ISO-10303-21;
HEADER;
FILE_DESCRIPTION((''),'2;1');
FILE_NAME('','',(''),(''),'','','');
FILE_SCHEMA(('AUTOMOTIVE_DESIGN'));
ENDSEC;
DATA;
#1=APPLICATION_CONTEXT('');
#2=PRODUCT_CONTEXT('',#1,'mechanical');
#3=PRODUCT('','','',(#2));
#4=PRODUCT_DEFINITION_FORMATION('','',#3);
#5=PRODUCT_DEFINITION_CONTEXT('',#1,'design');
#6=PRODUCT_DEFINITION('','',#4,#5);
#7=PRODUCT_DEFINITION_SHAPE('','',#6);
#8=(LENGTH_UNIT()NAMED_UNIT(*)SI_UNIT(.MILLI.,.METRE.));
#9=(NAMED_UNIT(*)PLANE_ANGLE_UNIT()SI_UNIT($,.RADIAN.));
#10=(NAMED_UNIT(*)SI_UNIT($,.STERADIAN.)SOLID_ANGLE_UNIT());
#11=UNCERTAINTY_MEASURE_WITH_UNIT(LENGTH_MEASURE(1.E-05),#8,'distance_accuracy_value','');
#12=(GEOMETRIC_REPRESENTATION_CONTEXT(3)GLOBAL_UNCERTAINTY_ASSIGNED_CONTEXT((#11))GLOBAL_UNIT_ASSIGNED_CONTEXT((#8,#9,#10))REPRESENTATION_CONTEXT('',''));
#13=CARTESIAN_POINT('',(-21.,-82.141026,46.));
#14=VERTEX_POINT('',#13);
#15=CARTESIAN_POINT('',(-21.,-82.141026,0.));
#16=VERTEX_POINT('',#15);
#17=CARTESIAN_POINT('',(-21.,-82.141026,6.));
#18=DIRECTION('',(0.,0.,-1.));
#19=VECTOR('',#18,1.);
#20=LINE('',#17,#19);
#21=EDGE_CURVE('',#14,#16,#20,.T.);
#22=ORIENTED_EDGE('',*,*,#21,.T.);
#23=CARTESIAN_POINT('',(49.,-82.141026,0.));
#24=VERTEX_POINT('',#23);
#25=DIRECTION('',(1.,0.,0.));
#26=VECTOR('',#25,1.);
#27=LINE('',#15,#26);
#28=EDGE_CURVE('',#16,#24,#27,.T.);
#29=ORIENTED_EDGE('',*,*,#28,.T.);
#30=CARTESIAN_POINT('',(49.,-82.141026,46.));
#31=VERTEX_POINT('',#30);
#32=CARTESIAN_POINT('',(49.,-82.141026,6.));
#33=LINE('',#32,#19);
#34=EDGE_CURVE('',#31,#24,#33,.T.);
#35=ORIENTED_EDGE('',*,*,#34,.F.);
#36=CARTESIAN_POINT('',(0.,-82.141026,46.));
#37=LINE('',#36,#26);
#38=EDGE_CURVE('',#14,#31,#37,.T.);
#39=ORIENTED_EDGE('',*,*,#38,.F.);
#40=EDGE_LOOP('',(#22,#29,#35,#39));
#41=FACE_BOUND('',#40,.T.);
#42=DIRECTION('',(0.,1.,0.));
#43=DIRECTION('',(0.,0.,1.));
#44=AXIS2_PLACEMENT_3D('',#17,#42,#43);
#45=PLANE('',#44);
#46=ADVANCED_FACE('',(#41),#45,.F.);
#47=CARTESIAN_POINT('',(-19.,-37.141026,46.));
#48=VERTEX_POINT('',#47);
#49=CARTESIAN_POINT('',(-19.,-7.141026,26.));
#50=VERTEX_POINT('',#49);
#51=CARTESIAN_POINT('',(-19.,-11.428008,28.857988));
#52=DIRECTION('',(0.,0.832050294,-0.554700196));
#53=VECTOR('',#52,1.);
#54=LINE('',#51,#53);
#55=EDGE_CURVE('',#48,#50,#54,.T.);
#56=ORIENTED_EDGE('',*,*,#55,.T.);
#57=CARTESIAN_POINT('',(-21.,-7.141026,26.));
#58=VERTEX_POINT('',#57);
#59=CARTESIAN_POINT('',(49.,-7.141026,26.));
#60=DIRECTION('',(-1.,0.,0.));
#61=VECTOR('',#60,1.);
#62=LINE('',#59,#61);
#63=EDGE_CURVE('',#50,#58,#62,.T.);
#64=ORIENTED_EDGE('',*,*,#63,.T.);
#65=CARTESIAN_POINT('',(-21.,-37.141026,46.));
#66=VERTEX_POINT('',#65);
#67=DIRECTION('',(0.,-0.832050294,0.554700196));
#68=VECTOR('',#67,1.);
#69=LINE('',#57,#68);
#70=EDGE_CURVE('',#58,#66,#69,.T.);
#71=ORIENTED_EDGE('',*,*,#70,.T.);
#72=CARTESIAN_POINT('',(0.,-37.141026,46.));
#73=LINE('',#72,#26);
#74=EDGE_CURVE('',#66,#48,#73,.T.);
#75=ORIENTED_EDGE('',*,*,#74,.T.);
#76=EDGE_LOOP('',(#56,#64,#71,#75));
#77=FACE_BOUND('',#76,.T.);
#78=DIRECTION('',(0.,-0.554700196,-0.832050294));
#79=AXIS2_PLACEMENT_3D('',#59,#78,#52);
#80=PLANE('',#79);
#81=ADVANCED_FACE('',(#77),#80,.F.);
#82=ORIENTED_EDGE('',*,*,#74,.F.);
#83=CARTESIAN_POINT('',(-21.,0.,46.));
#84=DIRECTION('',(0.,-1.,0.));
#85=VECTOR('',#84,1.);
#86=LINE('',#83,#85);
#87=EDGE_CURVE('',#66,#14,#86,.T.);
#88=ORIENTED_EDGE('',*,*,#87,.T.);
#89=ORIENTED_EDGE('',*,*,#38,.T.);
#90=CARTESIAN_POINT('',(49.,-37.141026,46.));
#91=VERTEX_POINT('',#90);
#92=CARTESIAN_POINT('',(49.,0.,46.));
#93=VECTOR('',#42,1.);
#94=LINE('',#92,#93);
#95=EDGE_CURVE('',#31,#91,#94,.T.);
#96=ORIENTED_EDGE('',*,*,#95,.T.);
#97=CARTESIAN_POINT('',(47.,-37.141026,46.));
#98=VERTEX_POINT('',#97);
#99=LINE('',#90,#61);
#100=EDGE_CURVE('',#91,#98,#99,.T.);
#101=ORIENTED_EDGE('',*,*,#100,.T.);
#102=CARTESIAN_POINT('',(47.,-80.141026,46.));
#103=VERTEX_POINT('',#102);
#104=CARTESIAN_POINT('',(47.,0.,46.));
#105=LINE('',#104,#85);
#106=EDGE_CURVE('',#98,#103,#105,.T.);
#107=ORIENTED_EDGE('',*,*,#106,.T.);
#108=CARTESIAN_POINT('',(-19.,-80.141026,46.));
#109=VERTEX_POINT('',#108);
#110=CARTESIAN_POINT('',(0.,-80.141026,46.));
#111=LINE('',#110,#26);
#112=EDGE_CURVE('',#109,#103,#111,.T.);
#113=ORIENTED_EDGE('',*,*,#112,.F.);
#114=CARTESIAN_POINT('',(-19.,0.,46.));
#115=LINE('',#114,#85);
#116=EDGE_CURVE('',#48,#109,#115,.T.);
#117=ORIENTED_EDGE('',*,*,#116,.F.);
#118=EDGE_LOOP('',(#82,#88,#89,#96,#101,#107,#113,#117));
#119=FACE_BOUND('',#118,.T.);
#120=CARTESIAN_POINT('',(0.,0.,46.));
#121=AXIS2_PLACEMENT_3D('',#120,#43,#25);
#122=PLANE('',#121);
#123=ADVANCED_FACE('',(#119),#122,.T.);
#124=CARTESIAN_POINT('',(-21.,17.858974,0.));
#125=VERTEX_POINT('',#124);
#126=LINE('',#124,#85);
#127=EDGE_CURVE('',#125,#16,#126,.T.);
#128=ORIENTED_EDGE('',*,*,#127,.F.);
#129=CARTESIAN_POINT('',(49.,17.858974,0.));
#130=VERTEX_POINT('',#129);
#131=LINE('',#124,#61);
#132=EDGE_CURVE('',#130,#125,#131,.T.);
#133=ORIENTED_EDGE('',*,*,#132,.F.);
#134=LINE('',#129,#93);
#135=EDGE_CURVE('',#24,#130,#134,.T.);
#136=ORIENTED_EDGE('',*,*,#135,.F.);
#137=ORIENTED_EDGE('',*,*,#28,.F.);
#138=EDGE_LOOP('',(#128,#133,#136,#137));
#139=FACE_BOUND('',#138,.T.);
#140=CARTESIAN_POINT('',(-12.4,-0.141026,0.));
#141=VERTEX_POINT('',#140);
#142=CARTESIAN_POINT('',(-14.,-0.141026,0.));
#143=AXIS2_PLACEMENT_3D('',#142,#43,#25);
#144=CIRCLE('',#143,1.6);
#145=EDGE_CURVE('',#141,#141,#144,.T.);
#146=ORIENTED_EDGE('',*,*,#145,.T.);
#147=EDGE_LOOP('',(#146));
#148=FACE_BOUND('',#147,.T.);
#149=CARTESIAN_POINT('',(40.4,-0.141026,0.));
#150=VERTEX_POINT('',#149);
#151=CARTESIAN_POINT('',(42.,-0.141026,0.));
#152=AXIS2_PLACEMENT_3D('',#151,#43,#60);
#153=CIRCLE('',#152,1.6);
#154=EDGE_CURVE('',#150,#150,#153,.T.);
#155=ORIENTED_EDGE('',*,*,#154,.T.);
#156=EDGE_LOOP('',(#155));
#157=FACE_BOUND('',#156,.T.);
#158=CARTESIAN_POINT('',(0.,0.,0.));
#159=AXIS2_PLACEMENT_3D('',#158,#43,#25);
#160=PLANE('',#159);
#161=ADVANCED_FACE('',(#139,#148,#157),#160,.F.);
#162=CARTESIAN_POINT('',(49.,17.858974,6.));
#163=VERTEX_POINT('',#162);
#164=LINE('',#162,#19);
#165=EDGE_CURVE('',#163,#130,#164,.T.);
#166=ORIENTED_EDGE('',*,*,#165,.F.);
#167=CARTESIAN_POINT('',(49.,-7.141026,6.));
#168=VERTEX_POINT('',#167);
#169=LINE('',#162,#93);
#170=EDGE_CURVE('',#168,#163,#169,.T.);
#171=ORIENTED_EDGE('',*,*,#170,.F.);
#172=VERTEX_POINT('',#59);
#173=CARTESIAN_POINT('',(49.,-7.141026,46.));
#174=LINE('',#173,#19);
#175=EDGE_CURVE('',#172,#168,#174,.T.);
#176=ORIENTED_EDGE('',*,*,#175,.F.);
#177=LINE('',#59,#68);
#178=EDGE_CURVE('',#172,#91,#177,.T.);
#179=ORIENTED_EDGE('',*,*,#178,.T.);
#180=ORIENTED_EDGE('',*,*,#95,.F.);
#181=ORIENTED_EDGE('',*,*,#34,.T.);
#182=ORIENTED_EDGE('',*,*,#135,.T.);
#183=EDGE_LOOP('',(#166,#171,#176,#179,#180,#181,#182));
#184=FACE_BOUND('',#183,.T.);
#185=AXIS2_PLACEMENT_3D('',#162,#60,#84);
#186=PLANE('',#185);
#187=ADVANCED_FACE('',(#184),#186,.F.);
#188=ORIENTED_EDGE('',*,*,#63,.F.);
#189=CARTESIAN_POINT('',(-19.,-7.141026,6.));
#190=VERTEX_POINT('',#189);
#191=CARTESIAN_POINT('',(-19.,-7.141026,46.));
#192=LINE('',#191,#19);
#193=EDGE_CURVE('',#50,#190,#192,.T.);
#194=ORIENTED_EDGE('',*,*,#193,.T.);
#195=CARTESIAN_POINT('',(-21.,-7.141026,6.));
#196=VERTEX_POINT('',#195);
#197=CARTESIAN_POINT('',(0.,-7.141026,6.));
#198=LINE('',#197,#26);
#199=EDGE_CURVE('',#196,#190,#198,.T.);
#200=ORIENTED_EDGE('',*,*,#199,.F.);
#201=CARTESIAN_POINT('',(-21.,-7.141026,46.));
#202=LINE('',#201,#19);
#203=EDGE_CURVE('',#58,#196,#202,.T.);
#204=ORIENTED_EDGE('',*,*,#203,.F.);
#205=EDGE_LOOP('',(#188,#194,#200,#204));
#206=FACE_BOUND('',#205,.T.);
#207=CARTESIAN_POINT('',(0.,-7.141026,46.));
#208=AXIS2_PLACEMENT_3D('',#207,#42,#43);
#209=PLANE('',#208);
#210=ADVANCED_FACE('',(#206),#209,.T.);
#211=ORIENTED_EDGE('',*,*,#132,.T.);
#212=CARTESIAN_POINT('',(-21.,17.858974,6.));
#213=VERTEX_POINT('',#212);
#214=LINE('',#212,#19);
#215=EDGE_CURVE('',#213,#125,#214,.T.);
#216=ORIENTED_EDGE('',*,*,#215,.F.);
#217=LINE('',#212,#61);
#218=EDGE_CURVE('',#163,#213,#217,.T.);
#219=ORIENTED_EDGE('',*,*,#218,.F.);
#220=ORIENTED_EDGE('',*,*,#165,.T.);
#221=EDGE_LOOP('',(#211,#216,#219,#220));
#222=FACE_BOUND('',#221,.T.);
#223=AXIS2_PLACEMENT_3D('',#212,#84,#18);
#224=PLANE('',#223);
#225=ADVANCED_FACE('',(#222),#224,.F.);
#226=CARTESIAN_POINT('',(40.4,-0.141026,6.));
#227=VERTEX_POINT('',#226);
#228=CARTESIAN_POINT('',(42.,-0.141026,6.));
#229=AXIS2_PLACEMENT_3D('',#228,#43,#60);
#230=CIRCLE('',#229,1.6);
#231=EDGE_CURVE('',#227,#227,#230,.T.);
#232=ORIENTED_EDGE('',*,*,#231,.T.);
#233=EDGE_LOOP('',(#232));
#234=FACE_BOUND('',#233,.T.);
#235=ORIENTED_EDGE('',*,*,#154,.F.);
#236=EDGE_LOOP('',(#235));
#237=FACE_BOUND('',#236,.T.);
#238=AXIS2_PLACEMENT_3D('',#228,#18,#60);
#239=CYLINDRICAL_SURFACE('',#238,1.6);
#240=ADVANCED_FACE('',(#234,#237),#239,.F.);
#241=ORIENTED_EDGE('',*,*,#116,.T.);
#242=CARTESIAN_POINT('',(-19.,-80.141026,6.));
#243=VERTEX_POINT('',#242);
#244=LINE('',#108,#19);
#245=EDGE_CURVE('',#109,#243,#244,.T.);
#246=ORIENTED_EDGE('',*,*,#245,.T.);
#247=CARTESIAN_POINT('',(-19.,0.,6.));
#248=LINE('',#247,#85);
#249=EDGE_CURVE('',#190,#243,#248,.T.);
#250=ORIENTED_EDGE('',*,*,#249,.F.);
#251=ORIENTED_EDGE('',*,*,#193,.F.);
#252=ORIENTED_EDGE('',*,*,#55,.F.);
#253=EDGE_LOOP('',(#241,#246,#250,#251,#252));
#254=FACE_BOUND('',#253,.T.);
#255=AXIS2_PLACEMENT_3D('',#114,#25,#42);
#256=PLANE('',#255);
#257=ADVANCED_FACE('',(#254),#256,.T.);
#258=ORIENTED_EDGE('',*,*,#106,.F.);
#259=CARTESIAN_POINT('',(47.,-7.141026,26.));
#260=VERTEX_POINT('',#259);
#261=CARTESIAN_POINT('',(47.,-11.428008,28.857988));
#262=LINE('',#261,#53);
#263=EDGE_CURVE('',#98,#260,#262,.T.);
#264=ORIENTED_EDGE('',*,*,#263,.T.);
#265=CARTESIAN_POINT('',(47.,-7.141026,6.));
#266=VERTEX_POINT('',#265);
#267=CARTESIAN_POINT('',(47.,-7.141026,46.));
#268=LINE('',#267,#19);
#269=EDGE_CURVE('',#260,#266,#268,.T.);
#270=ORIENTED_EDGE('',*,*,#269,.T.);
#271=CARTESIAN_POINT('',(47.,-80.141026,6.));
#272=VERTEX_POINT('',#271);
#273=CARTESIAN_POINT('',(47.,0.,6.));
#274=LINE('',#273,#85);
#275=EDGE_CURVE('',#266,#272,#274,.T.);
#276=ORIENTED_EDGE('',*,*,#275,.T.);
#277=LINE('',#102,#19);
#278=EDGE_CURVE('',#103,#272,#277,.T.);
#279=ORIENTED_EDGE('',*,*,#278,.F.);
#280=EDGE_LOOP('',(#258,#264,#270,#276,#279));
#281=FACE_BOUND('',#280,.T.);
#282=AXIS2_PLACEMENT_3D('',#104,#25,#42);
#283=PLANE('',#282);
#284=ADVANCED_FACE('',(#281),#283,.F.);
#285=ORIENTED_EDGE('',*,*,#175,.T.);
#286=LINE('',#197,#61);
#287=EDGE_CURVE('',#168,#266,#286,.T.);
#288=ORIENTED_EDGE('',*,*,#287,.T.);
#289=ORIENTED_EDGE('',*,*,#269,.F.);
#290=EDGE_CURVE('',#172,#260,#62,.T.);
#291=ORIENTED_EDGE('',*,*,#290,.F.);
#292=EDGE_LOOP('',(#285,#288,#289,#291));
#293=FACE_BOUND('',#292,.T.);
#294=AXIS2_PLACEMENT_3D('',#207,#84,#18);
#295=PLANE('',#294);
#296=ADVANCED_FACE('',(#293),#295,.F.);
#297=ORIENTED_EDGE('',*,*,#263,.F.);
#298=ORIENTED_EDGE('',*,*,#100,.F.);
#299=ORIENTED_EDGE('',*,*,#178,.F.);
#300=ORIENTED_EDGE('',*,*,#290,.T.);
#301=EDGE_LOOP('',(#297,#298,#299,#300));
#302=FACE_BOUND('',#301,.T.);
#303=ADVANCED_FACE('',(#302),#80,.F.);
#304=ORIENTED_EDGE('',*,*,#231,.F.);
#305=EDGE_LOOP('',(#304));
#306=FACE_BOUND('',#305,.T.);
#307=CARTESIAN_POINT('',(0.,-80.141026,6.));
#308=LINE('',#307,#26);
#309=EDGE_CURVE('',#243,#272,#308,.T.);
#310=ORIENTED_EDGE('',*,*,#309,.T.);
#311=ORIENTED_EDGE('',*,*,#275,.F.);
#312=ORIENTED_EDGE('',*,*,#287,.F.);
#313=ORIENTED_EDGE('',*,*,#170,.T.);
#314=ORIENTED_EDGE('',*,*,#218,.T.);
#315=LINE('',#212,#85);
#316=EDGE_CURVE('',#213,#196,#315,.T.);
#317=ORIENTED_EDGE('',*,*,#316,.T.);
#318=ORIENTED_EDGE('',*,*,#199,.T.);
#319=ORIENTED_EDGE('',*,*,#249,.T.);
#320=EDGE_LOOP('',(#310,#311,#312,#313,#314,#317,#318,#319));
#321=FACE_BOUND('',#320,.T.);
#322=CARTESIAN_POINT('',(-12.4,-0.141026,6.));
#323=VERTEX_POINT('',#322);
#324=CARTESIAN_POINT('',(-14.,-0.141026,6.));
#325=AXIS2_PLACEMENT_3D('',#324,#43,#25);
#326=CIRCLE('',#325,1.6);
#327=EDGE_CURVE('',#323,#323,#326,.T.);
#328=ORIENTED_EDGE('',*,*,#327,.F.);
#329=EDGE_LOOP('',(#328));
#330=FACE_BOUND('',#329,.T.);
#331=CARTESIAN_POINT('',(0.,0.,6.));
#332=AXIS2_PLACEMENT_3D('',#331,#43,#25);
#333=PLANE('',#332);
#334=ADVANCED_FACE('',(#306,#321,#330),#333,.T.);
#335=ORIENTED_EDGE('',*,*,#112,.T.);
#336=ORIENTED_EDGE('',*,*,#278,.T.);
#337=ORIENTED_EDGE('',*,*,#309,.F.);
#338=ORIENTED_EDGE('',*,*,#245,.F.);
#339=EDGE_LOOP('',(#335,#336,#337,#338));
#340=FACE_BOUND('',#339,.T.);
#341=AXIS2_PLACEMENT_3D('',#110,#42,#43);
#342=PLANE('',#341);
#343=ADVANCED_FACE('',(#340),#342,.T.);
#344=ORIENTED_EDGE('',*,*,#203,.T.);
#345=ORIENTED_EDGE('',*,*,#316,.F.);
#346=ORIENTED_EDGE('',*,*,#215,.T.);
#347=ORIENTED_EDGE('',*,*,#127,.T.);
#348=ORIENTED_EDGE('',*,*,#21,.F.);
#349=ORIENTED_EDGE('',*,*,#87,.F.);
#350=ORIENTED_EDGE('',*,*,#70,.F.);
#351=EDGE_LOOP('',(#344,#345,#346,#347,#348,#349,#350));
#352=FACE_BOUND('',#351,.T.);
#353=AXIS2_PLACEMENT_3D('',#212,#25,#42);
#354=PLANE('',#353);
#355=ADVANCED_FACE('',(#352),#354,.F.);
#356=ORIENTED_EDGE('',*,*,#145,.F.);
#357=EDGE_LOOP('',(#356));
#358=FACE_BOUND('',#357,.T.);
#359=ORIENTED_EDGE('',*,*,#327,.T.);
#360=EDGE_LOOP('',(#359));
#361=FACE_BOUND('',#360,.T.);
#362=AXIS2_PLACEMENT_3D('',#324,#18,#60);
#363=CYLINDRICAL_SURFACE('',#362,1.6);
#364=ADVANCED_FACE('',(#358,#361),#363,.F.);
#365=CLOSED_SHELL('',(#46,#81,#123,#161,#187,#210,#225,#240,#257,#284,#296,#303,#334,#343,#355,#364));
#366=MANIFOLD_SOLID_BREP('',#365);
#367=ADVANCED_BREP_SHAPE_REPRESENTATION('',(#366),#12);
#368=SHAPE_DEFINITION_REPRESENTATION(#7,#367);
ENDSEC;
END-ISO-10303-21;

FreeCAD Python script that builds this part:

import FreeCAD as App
import Part
import Sketcher
from FreeCAD import Vector
Q = App.Units.Quantity

doc = App.newDocument("Part")
params = doc.addObject("Spreadsheet::Sheet", "Params")
for row, (alias, value) in enumerate([
    ("sketch1_diameter", "3.2 mm"),
    ("sketch1_width", "70 mm"),
    ("sketch1_height", "100 mm"),
    ("pad1_length", "6 mm"),
    ("sketch2_width", "2 mm"),
    ("sketch2_width2", "70 mm"),
    ("sketch2_height", "75 mm"),
    ("sketch2_height2", "73 mm"),
    ("pad2_length", "40 mm"),
    ("sketch3_width", "30 mm"),
    ("sketch3_height", "20 mm"),
], start=1):
    params.set(f"A{row}", alias)
    params.set(f"B{row}", "=" + value)
    params.setAlias(f"B{row}", alias)

body = doc.addObject("PartDesign::Body", "Body")

# Sketch on XY plane
sketch1 = body.newObject("Sketcher::SketchObject", "Sketch")
sketch1.AttachmentSupport = (doc.getObject("XY_Plane"), [""])
sketch1.MapMode = "FlatFace"
sketch1.addGeometry(Part.LineSegment(Vector(-21, 17.9, 0), Vector(-21, -82.1, 0)), False)
sketch1.addGeometry(Part.LineSegment(Vector(-21, -82.1, 0), Vector(49, -82.1, 0)), False)
sketch1.addGeometry(Part.LineSegment(Vector(49, -82.1, 0), Vector(49, 17.9, 0)), False)
sketch1.addGeometry(Part.LineSegment(Vector(49, 17.9, 0), Vector(-21, 17.9, 0)), False)
sketch1.addGeometry(Part.Circle(Vector(-14, -0.1, 0), Vector(0, 0, 1), 1.6), False)
sketch1.addGeometry(Part.Circle(Vector(42, -0.1, 0), Vector(0, 0, 1), 1.6), False)
sketch1.addConstraint(Sketcher.Constraint("Coincident", 0, 2, 1, 1))
sketch1.addConstraint(Sketcher.Constraint("Coincident", 1, 2, 2, 1))
sketch1.addConstraint(Sketcher.Constraint("Coincident", 2, 2, 3, 1))
sketch1.addConstraint(Sketcher.Constraint("Coincident", 3, 2, 0, 1))
sketch1.addConstraint(Sketcher.Constraint("Vertical", 0))
sketch1.addConstraint(Sketcher.Constraint("Horizontal", 1))
sketch1.addConstraint(Sketcher.Constraint("Vertical", 2))
sketch1.addConstraint(Sketcher.Constraint("Horizontal", 3))
sketch1.addConstraint(Sketcher.Constraint("Equal", 4, 5))
sketch1.addConstraint(Sketcher.Constraint("Horizontal", 4, 3, 5, 3))
sketch1.addConstraint(Sketcher.Constraint("Diameter", 4, Q("3.2 mm")))
sketch1.addConstraint(Sketcher.Constraint("DistanceX", 1, 1, 1, 2, Q("70 mm")))
sketch1.addConstraint(Sketcher.Constraint("DistanceY", 0, 2, 0, 1, Q("100 mm")))
sketch1.addConstraint(Sketcher.Constraint("DistanceX", 4, 3, -1, 1, Q("14 mm")))
sketch1.addConstraint(Sketcher.Constraint("DistanceX", -1, 1, 5, 3, Q("42 mm")))
sketch1.addConstraint(Sketcher.Constraint("DistanceX", 0, 2, -1, 1, Q("21 mm")))
sketch1.addConstraint(Sketcher.Constraint("DistanceY", 0, 2, 4, 3, Q("82 mm")))
sketch1.addConstraint(Sketcher.Constraint("DistanceY", 4, 3, -1, 1, Q("0.141026 mm")))
sketch1.setExpression("Constraints[10]", "Params.sketch1_diameter")
sketch1.setExpression("Constraints[11]", "Params.sketch1_width")
sketch1.setExpression("Constraints[12]", "Params.sketch1_height")
pad1 = body.newObject("PartDesign::Pad", "Pad")
pad1.Profile = sketch1
pad1.setExpression("Length", "Params.pad1_length")

# Sketch on XY plane
sketch2 = body.newObject("Sketcher::SketchObject", "Sketch001")
sketch2.AttachmentSupport = (doc.getObject("XY_Plane"), [""])
sketch2.MapMode = "FlatFace"
sketch2.AttachmentOffset = App.Placement(Vector(0, 0, 6), App.Rotation())
sketch2.addGeometry(Part.LineSegment(Vector(-19, -7.1, 0), Vector(-21, -7.1, 0)), False)
sketch2.addGeometry(Part.LineSegment(Vector(-21, -7.1, 0), Vector(-21, -82.1, 0)), False)
sketch2.addGeometry(Part.LineSegment(Vector(-21, -82.1, 0), Vector(49, -82.1, 0)), False)
sketch2.addGeometry(Part.LineSegment(Vector(49, -82.1, 0), Vector(49, -7.1, 0)), False)
sketch2.addGeometry(Part.LineSegment(Vector(49, -7.1, 0), Vector(47, -7.1, 0)), False)
sketch2.addGeometry(Part.LineSegment(Vector(47, -7.1, 0), Vector(47, -80.1, 0)), False)
sketch2.addGeometry(Part.LineSegment(Vector(47, -80.1, 0), Vector(-19, -80.1, 0)), False)
sketch2.addGeometry(Part.LineSegment(Vector(-19, -80.1, 0), Vector(-19, -7.1, 0)), False)
sketch2.addConstraint(Sketcher.Constraint("Coincident", 0, 2, 1, 1))
sketch2.addConstraint(Sketcher.Constraint("Coincident", 1, 2, 2, 1))
sketch2.addConstraint(Sketcher.Constraint("Coincident", 2, 2, 3, 1))
sketch2.addConstraint(Sketcher.Constraint("Coincident", 3, 2, 4, 1))
sketch2.addConstraint(Sketcher.Constraint("Coincident", 4, 2, 5, 1))
sketch2.addConstraint(Sketcher.Constraint("Coincident", 5, 2, 6, 1))
sketch2.addConstraint(Sketcher.Constraint("Coincident", 6, 2, 7, 1))
sketch2.addConstraint(Sketcher.Constraint("Coincident", 7, 2, 0, 1))
sketch2.addConstraint(Sketcher.Constraint("Horizontal", 0))
sketch2.addConstraint(Sketcher.Constraint("Vertical", 1))
sketch2.addConstraint(Sketcher.Constraint("Horizontal", 2))
sketch2.addConstraint(Sketcher.Constraint("Vertical", 3))
sketch2.addConstraint(Sketcher.Constraint("Horizontal", 4))
sketch2.addConstraint(Sketcher.Constraint("Vertical", 5))
sketch2.addConstraint(Sketcher.Constraint("Horizontal", 6))
sketch2.addConstraint(Sketcher.Constraint("Vertical", 7))
sketch2.addConstraint(Sketcher.Constraint("Horizontal", 0, 2, 3, 2))
sketch2.addConstraint(Sketcher.Constraint("Equal", 0, 4))
sketch2.addConstraint(Sketcher.Constraint("DistanceX", 0, 2, 0, 1, Q("2 mm")))
sketch2.addConstraint(Sketcher.Constraint("DistanceX", 2, 1, 2, 2, Q("70 mm")))
sketch2.addConstraint(Sketcher.Constraint("DistanceY", 1, 2, 1, 1, Q("75 mm")))
sketch2.addConstraint(Sketcher.Constraint("DistanceY", 5, 2, 5, 1, Q("73 mm")))
sketch2.addConstraint(Sketcher.Constraint("DistanceX", 0, 2, -1, 1, Q("21 mm")))
sketch2.addConstraint(Sketcher.Constraint("DistanceY", 0, 2, -1, 1, Q("7.141026 mm")))
sketch2.setExpression("Constraints[18]", "Params.sketch2_width")
sketch2.setExpression("Constraints[19]", "Params.sketch2_width2")
sketch2.setExpression("Constraints[20]", "Params.sketch2_height")
sketch2.setExpression("Constraints[21]", "Params.sketch2_height2")
pad2 = body.newObject("PartDesign::Pad", "Pad001")
pad2.Profile = sketch2
pad2.setExpression("Length", "Params.pad2_length")

# Sketch on YZ plane
sketch3 = body.newObject("Sketcher::SketchObject", "Sketch002")
sketch3.AttachmentSupport = (doc.getObject("YZ_Plane"), [""])
sketch3.MapMode = "FlatFace"
sketch3.AttachmentOffset = App.Placement(Vector(0, 0, -21), App.Rotation())
sketch3.addGeometry(Part.LineSegment(Vector(-7, 26, 0), Vector(-37, 46, 0)), False)
sketch3.addGeometry(Part.LineSegment(Vector(-37, 46, 0), Vector(-7, 46, 0)), False)
sketch3.addGeometry(Part.LineSegment(Vector(-7, 46, 0), Vector(-7, 26, 0)), False)
sketch3.addConstraint(Sketcher.Constraint("Coincident", 0, 2, 1, 1))
sketch3.addConstraint(Sketcher.Constraint("Coincident", 1, 2, 2, 1))
sketch3.addConstraint(Sketcher.Constraint("Coincident", 2, 2, 0, 1))
sketch3.addConstraint(Sketcher.Constraint("Horizontal", 1))
sketch3.addConstraint(Sketcher.Constraint("Vertical", 2))
sketch3.addConstraint(Sketcher.Constraint("DistanceX", 1, 1, 1, 2, Q("30 mm")))
sketch3.addConstraint(Sketcher.Constraint("DistanceY", 2, 2, 2, 1, Q("20 mm")))
sketch3.addConstraint(Sketcher.Constraint("DistanceY", -1, 1, 0, 2, Q("46 mm")))
sketch3.addConstraint(Sketcher.Constraint("DistanceX", 0, 2, -1, 1, Q("37.141026 mm")))
sketch3.setExpression("Constraints[5]", "Params.sketch3_width")
sketch3.setExpression("Constraints[6]", "Params.sketch3_height")
pocket1 = body.newObject("PartDesign::Pocket", "Pocket")
pocket1.Profile = sketch3
pocket1.Type = "ThroughAll"
pocket1.Reversed = True

doc.recompute()
